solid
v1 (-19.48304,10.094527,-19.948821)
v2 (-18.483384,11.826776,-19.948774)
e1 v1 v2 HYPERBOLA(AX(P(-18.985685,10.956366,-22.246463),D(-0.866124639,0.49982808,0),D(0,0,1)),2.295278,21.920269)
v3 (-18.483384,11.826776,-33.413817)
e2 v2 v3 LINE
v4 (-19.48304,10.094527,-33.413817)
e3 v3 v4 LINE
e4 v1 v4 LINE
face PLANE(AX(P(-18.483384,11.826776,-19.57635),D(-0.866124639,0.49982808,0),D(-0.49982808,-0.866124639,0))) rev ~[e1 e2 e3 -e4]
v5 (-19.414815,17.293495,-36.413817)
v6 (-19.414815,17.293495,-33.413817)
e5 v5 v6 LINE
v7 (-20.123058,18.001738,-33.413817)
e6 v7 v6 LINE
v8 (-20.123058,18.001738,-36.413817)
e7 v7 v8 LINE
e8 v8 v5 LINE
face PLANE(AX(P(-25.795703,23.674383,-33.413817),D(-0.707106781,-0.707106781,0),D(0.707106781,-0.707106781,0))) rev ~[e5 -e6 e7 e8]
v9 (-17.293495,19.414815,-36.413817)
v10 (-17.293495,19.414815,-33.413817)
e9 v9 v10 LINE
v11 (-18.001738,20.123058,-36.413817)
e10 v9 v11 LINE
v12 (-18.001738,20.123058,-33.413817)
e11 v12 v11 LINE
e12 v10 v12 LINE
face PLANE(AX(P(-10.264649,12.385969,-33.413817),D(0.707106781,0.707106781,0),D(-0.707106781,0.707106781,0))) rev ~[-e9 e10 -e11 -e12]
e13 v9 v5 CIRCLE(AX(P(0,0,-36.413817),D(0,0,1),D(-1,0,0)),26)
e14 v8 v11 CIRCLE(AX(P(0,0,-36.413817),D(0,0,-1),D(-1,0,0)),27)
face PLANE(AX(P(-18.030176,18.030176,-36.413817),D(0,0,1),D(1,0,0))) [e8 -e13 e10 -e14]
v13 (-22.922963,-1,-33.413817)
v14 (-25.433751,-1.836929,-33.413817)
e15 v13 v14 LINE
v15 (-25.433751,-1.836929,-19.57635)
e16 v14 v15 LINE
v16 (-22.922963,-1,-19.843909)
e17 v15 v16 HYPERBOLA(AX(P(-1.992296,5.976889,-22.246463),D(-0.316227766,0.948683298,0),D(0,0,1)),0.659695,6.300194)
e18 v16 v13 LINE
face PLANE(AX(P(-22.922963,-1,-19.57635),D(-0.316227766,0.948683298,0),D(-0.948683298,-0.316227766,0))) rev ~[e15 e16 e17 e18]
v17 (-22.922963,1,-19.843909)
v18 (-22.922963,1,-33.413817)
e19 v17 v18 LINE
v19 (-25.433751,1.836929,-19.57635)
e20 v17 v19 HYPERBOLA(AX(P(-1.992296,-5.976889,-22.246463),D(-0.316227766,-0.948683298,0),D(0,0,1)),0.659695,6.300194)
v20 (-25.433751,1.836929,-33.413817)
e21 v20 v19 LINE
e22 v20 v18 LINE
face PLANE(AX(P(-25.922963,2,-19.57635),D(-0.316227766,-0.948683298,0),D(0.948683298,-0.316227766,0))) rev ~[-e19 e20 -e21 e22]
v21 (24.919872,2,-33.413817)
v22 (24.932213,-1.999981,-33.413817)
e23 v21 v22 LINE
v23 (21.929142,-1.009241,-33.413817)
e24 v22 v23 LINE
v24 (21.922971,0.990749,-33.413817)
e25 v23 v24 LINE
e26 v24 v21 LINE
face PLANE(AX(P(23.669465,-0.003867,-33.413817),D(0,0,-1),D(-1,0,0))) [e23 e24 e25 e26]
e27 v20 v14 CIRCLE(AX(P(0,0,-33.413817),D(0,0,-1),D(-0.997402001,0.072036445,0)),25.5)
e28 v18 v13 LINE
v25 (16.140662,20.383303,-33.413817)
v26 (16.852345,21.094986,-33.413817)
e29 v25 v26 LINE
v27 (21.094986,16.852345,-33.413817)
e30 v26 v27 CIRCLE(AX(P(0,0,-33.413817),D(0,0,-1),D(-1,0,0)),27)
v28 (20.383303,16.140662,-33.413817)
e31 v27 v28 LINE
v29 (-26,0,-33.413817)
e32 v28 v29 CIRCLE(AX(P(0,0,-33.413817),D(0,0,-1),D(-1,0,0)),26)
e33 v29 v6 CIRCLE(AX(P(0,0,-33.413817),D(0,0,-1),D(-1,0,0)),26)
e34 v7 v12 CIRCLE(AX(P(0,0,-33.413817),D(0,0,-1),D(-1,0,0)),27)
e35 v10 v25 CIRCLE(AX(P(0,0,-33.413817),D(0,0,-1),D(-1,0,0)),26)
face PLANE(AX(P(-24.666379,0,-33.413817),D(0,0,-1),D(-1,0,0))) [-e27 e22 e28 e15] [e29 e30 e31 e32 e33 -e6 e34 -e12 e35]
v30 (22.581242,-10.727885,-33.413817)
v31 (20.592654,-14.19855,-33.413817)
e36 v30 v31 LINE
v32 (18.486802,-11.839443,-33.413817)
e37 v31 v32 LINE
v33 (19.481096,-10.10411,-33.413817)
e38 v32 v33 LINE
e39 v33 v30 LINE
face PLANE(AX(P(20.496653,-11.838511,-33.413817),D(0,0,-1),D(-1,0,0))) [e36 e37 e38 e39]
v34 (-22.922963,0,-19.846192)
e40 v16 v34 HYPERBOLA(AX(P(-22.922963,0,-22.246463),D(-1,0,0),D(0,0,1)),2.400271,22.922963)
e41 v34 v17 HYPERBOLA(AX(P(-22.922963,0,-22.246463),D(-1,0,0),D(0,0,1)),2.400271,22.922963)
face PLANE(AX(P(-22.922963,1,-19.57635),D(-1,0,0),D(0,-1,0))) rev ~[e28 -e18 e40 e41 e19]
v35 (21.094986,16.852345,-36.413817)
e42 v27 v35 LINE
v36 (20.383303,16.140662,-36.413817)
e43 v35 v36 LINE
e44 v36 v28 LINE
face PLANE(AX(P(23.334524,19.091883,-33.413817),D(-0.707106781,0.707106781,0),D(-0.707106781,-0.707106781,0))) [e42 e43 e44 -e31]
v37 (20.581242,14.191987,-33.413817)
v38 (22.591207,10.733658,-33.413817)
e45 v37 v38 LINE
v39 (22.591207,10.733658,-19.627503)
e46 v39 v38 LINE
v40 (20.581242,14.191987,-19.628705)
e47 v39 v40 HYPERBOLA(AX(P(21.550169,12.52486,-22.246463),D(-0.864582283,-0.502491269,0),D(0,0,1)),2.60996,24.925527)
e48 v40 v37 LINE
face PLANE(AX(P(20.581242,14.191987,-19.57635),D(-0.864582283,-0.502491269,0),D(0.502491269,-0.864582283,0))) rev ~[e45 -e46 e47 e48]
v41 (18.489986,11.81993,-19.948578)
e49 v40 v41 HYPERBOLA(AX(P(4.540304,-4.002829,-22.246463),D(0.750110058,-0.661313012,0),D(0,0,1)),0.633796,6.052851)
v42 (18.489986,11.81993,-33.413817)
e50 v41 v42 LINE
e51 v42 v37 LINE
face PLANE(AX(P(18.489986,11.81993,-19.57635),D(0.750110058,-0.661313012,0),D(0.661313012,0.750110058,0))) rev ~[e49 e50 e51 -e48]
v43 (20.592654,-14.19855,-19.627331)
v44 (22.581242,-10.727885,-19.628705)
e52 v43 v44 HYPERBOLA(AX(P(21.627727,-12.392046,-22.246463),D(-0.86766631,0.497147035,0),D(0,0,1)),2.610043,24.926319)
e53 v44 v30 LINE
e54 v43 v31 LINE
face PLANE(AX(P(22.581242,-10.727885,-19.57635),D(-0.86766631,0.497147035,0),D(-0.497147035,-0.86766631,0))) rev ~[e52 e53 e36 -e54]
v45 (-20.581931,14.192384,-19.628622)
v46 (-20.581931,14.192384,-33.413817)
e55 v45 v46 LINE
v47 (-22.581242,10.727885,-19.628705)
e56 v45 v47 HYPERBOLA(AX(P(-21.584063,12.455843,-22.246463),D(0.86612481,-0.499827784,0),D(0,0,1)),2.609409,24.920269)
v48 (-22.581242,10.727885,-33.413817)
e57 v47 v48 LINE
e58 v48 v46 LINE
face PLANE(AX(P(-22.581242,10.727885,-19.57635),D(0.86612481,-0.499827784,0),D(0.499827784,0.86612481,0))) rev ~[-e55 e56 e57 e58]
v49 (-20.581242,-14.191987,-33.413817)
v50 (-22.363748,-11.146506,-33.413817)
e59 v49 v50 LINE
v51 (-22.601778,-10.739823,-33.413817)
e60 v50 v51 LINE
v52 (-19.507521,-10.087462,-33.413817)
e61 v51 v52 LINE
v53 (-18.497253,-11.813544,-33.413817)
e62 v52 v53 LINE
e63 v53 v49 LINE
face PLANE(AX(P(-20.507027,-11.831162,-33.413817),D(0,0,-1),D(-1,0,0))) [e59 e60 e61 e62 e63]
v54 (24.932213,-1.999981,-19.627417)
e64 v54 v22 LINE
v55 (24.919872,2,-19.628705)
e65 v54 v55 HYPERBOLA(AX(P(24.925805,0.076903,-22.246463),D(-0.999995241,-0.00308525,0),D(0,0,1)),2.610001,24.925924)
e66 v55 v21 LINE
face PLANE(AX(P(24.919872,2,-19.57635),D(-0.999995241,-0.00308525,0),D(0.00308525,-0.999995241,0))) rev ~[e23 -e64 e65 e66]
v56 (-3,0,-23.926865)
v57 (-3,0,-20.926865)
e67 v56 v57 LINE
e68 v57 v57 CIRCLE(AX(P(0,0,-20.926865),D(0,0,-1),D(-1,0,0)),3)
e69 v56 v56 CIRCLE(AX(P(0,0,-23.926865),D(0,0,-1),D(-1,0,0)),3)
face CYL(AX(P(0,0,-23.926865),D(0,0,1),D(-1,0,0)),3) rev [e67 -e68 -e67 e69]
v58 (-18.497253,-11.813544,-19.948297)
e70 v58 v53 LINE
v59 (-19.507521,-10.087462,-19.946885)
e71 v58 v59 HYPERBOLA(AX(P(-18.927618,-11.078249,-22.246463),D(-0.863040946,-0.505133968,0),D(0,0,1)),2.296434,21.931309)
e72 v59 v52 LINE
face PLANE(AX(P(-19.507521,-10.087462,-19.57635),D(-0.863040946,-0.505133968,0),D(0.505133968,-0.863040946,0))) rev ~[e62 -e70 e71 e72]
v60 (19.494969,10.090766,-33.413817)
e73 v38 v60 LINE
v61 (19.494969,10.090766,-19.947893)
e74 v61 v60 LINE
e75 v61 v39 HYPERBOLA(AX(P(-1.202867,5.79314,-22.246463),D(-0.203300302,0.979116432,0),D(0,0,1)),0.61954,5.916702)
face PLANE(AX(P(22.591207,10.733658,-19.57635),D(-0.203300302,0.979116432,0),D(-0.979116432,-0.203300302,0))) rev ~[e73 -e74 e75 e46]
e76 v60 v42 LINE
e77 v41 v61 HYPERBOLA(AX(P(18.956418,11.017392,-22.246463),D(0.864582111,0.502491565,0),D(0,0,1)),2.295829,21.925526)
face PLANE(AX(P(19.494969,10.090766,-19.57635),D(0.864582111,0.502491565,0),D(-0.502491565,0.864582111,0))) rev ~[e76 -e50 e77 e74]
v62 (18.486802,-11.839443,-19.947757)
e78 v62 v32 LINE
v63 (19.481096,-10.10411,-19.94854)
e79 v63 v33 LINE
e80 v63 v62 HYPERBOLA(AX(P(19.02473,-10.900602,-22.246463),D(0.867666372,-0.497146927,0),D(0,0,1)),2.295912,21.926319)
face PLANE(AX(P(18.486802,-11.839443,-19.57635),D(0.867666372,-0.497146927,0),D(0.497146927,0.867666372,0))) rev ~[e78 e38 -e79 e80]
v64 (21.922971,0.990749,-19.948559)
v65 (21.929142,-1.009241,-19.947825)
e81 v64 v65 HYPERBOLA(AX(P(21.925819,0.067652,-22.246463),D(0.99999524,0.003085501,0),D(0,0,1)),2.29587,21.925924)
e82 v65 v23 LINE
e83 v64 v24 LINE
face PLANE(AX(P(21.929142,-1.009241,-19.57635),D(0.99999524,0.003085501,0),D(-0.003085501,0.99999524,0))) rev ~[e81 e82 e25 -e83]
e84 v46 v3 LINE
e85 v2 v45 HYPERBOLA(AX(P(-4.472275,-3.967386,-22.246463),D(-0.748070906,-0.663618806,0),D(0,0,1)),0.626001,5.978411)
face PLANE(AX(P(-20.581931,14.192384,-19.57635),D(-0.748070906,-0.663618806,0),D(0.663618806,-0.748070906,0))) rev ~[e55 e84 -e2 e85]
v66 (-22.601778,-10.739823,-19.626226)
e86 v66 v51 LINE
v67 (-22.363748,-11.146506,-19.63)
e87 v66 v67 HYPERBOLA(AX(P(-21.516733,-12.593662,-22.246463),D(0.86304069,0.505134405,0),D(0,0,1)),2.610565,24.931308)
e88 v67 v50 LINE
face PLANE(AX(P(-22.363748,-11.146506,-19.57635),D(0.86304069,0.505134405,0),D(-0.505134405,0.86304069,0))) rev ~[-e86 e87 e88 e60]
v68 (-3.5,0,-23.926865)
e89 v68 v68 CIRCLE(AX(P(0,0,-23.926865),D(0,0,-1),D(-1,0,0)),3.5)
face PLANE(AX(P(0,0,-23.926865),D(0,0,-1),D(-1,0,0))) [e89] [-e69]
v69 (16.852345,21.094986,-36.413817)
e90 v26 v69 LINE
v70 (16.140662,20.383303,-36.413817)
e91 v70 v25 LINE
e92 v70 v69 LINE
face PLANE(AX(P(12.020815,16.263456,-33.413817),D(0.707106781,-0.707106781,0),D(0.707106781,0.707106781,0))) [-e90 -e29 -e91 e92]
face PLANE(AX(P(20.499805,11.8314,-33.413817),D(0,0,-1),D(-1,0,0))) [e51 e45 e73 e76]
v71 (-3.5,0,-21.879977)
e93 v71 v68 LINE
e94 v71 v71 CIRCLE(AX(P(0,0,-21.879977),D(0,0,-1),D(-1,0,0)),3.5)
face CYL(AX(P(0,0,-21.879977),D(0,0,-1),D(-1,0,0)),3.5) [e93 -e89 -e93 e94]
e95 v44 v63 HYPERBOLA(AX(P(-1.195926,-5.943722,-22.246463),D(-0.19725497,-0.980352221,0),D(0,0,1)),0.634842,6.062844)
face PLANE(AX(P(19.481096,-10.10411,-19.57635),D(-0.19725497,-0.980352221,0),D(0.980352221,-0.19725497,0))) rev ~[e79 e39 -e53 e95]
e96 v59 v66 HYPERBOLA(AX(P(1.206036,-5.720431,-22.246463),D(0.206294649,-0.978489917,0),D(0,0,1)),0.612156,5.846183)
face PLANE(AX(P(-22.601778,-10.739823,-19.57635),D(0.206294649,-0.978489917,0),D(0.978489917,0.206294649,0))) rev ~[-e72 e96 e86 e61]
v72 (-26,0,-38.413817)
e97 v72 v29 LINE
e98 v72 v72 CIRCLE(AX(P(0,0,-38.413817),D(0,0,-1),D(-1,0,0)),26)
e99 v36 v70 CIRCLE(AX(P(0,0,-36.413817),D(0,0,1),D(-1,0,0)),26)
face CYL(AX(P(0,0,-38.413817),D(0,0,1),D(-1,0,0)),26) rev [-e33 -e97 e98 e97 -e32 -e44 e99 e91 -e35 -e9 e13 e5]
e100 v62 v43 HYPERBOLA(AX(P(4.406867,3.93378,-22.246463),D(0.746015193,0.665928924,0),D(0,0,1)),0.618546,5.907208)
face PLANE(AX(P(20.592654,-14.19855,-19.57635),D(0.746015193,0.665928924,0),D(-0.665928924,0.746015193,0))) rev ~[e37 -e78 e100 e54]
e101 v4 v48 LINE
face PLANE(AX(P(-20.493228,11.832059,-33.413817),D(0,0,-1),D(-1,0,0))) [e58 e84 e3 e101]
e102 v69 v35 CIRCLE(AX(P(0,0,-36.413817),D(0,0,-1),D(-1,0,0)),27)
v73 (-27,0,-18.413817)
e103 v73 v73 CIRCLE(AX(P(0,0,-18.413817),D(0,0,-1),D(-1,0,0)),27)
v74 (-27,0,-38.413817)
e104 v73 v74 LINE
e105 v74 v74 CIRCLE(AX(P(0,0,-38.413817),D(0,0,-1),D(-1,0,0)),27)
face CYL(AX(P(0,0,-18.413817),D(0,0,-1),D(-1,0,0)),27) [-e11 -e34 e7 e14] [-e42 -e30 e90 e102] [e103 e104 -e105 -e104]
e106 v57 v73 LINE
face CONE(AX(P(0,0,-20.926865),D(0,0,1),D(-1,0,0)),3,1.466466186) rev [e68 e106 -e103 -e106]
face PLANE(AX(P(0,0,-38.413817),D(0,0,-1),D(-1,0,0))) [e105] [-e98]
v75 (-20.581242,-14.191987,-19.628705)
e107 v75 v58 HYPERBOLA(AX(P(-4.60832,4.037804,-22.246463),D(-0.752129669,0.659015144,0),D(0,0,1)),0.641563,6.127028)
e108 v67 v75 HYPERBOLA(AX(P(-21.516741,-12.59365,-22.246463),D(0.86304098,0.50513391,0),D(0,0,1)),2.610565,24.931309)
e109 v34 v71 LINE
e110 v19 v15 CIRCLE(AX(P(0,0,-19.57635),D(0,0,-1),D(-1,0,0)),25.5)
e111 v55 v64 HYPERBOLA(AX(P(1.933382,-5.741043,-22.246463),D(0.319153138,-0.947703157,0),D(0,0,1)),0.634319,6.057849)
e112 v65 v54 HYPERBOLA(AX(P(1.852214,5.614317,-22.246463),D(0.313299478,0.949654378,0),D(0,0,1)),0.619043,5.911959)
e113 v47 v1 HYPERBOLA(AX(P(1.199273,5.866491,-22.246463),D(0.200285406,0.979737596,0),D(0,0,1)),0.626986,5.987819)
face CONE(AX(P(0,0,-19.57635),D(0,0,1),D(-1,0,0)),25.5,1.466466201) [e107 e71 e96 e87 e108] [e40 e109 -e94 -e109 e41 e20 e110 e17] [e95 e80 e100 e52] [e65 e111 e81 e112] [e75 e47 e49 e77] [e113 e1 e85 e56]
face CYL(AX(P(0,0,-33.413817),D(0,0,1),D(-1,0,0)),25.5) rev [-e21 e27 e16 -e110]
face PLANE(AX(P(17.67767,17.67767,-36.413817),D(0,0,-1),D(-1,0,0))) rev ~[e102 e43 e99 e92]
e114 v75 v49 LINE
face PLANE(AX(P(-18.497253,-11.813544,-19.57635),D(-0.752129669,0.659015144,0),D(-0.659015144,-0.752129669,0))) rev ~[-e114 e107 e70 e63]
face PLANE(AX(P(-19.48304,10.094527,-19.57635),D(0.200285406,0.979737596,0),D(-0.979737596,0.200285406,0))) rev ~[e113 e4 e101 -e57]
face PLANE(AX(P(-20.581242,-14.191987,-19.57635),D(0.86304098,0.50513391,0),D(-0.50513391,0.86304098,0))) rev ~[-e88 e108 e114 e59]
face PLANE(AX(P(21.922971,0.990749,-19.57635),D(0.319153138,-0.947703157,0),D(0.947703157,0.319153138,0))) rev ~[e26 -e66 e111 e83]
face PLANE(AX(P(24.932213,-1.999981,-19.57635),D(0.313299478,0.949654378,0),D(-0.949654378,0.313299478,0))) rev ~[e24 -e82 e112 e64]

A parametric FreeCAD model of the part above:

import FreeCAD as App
import Part
import Sketcher
Q = App.Units.Quantity


def add_polygon(sketch, points):
    """Adds a closed chain of lines whose ends are joined by coincident constraints."""
    first, n = sketch.GeometryCount, len(points)
    for a, b in zip(points, points[1:] + points[:1]):
        sketch.addGeometry(Part.LineSegment(App.Vector(*a, 0), App.Vector(*b, 0)), False)
    for i in range(n):
        sketch.addConstraint(Sketcher.Constraint("Coincident", first + i, 2, first + (i + 1) % n, 1))

doc = App.newDocument("Part")
body = doc.addObject("PartDesign::Body", "Body")

# Sketch on XZ plane
sketch1 = body.newObject("Sketcher::SketchObject", "Sketch")
sketch1.AttachmentSupport = (doc.getObject("XZ_Plane"), [""])
sketch1.MapMode = "FlatFace"
add_polygon(sketch1, [(-27, -38.413817), (-27, -18.413817), (-3, -20.926865), (-3, -23.926865), (-3.5, -23.926865), (-3.5, -21.879977), (-25.5, -19.57635), (-25.5, -33.413817), (-26, -33.413817), (-26, -38.413817)])  # lines 0-9
sketch1.addConstraint([
    Sketcher.Constraint("Vertical", 0),
    Sketcher.Constraint("Vertical", 2),
    Sketcher.Constraint("Horizontal", 3),
    Sketcher.Constraint("Vertical", 4),
    Sketcher.Constraint("Vertical", 6),
    Sketcher.Constraint("Horizontal", 7),
    Sketcher.Constraint("Vertical", 8),
    Sketcher.Constraint("Horizontal", 9),
    Sketcher.Constraint("Parallel", 1, 5),
    Sketcher.Constraint("Equal", 3, 7),
    Sketcher.Constraint("DistanceX", 9, 2, 9, 1, 1.0),
    Sketcher.Constraint("DistanceY", 0, 1, 0, 2, 20.0),
    Sketcher.Constraint("DistanceY", 2, 2, 2, 1, 3.0),
    Sketcher.Constraint("DistanceY", 8, 2, 8, 1, 5.0),
    Sketcher.Constraint("DistanceX", 3, 2, 3, 1, 0.5),
    Sketcher.Constraint("DistanceX", 0, 2, -1, 1, 27.0),
    Sketcher.Constraint("DistanceX", 1, 2, -1, 1, 3.0),
    Sketcher.Constraint("DistanceY", 4, 1, 4, 2, 2.046888),
    Sketcher.Constraint("DistanceY", 6, 2, 6, 1, 13.837467),
    Sketcher.Constraint("DistanceY", 5, 2, -1, 1, 19.57635),
])
revolution = body.newObject("PartDesign::Revolution", "Revolution")
revolution.Profile = sketch1
revolution.ReferenceAxis = (sketch1, ["V_Axis"])
revolution.Angle = 360

# Sketch on XY plane
sketch2 = body.newObject("Sketcher::SketchObject", "Sketch001")
sketch2.AttachmentSupport = (doc.getObject("XY_Plane"), [""])
sketch2.MapMode = "FlatFace"
sketch2.AttachmentOffset = App.Placement(App.Vector(0, 0, -19.57635), App.Rotation())
add_polygon(sketch2, [(-22.922963, -1), (-25.922963, -2), (-25.922963, 2), (-22.922963, 1)])  # lines 0-3
add_polygon(sketch2, [(21.922971, 0.990749), (24.919872, 2), (24.932213, -1.999981), (21.929142, -1.009241)])  # lines 4-7
add_polygon(sketch2, [(-19.48304, 10.094527), (-22.581242, 10.727885), (-20.581931, 14.192384), (-18.483384, 11.826776)])  # lines 8-11
add_polygon(sketch2, [(18.489986, 11.81993), (20.581242, 14.191987), (22.591207, 10.733658), (19.494969, 10.090766)])  # lines 12-15
add_polygon(sketch2, [(-18.497253, -11.813544), (-20.581242, -14.191987), (-22.363748, -11.146506), (-22.601778, -10.739823), (-19.507521, -10.087462)])  # lines 16-20
add_polygon(sketch2, [(19.481096, -10.10411), (22.581242, -10.727885), (20.592654, -14.19855), (18.486802, -11.839443)])  # lines 21-24
sketch2.addConstraint([
    Sketcher.Constraint("Vertical", 1),
    Sketcher.Constraint("Vertical", 3),
    Sketcher.Constraint("Symmetric", 12, 2, 16, 2, -1, 1),
    Sketcher.Constraint("Symmetric", 8, 2, 21, 2, -1, 1),
    Sketcher.Constraint("Parallel", 5, 7),
    Sketcher.Constraint("Parallel", 9, 11),
    Sketcher.Constraint("Parallel", 13, 15),
    Sketcher.Constraint("Parallel", 17, 18),
    Sketcher.Constraint("Parallel", 18, 20),
    Sketcher.Constraint("Parallel", 22, 24),
    Sketcher.Constraint("Horizontal", 1, 2, 4, 2),
    Sketcher.Constraint("Equal", 0, 2),
    Sketcher.Constraint("Equal", 2, 4),
    Sketcher.Constraint("Equal", 4, 6),
    Sketcher.Constraint("Equal", 6, 8),
    Sketcher.Constraint("Equal", 5, 9),
    Sketcher.Constraint("Equal", 8, 10),
    Sketcher.Constraint("Equal", 7, 11),
    Sketcher.Constraint("Equal", 10, 12),
    Sketcher.Constraint("Equal", 9, 13),
    Sketcher.Constraint("Equal", 12, 14),
    Sketcher.Constraint("Equal", 11, 15),
    Sketcher.Constraint("Equal", 14, 16),
    Sketcher.Constraint("Equal", 16, 19),
    Sketcher.Constraint("Equal", 15, 20),
    Sketcher.Constraint("Equal", 19, 21),
    Sketcher.Constraint("Equal", 13, 22),
    Sketcher.Constraint("Equal", 21, 23),
    Sketcher.Constraint("Equal", 20, 24),
    Sketcher.Constraint("DistanceY", 1, 1, 1, 2, 4.0),
    Sketcher.Constraint("DistanceY", 3, 2, 3, 1, 2.0),
    Sketcher.Constraint("Distance", 5, 4.0),
    Sketcher.Constraint("Distance", 7, 2.0),
    Sketcher.Constraint("DistanceY", 0, 2, -1, 1, 2.0),
    Sketcher.Constraint("DistanceX", 1, 2, 2, 2, 3.0),
    Sketcher.Constraint("Angle", 14, Q("-168.269982 deg")),
    Sketcher.Constraint("DistanceX", 14, 2, 7, 2, 2.428002),
    Sketcher.Constraint("DistanceX", 7, 2, 4, 2, 2.996901),
    Sketcher.Constraint("DistanceY", 8, 2, 9, 2, 3.464499),
    Sketcher.Constraint("DistanceY", 6, 2, 13, 2, 11.742899),
    Sketcher.Constraint("DistanceX", 6, 2, 21, 2, 0.6521),
    Sketcher.Constraint("DistanceY", 22, 2, 7, 2, 15.189299),
    Sketcher.Constraint("Distance", 17, 3.528779),
    Sketcher.Constraint("Distance", 18, 0.471221),
    Sketcher.Constraint("DistanceX", -1, 1, 6, 2, 21.929142),
    Sketcher.Constraint("DistanceX", 17, 2, -1, 1, 22.363748),
    Sketcher.Constraint("DistanceY", 24, 2, -1, 1, 10.10411),
    Sketcher.Constraint("DistanceX", 1, 2, 8, 2, 3.341721),
])
pad1 = body.newObject("PartDesign::Pad", "Pad")
pad1.Profile = sketch2
pad1.Length = 13.837467
pad1.Reversed = True

# Sketch on XY plane
sketch3 = body.newObject("Sketcher::SketchObject", "Sketch002")
sketch3.AttachmentSupport = (doc.getObject("XY_Plane"), [""])
sketch3.MapMode = "FlatFace"
sketch3.AttachmentOffset = App.Placement(App.Vector(0, 0, -33.413817), App.Rotation())
add_polygon(sketch3, [(-23.674383, 25.795703), (-10.264649, 12.385969), (-12.385969, 10.264649), (-25.795703, 23.674383)])  # lines 0-3
sketch3.addConstraint([
    Sketcher.Constraint("Perpendicular", 0, 1),
    Sketcher.Constraint("Perpendicular", 1, 2),
    Sketcher.Constraint("Perpendicular", 2, 3),
    Sketcher.Constraint("Angle", 0, Q("-45 deg")),
    Sketcher.Constraint("Distance", 1, 3.0),
    Sketcher.Constraint("DistanceX", 0, 2, -1, 1, 10.264649),
    Sketcher.Constraint("DistanceY", -1, 1, 0, 2, 12.385969),
    Sketcher.Constraint("Distance", 0, 18.964228),
])
pocket1 = body.newObject("PartDesign::Pocket", "Pocket")
pocket1.Profile = sketch3
pocket1.Length = 3

# Sketch on XY plane
sketch4 = body.newObject("Sketcher::SketchObject", "Sketch003")
sketch4.AttachmentSupport = (doc.getObject("XY_Plane"), [""])
sketch4.MapMode = "FlatFace"
sketch4.AttachmentOffset = App.Placement(App.Vector(0, 0, -33.413817), App.Rotation())
add_polygon(sketch4, [(12.020815, 16.263456), (19.091883, 23.334524), (23.334524, 19.091883), (16.263456, 12.020815)])  # lines 0-3
sketch4.addConstraint([
    Sketcher.Constraint("Perpendicular", 0, 1),
    Sketcher.Constraint("Perpendicular", 1, 2),
    Sketcher.Constraint("Perpendicular", 2, 3),
    Sketcher.Constraint("Angle", 0, Q("45 deg")),
    Sketcher.Constraint("Distance", 0, 10.0),
    Sketcher.Constraint("Distance", 1, 6.0),
    Sketcher.Constraint("DistanceX", -1, 1, 0, 2, 19.091883),
    Sketcher.Constraint("DistanceY", -1, 1, 0, 2, 23.334524),
])
pocket2 = body.newObject("PartDesign::Pocket", "Pocket001")
pocket2.Profile = sketch4
pocket2.Length = 3

doc.recompute()
